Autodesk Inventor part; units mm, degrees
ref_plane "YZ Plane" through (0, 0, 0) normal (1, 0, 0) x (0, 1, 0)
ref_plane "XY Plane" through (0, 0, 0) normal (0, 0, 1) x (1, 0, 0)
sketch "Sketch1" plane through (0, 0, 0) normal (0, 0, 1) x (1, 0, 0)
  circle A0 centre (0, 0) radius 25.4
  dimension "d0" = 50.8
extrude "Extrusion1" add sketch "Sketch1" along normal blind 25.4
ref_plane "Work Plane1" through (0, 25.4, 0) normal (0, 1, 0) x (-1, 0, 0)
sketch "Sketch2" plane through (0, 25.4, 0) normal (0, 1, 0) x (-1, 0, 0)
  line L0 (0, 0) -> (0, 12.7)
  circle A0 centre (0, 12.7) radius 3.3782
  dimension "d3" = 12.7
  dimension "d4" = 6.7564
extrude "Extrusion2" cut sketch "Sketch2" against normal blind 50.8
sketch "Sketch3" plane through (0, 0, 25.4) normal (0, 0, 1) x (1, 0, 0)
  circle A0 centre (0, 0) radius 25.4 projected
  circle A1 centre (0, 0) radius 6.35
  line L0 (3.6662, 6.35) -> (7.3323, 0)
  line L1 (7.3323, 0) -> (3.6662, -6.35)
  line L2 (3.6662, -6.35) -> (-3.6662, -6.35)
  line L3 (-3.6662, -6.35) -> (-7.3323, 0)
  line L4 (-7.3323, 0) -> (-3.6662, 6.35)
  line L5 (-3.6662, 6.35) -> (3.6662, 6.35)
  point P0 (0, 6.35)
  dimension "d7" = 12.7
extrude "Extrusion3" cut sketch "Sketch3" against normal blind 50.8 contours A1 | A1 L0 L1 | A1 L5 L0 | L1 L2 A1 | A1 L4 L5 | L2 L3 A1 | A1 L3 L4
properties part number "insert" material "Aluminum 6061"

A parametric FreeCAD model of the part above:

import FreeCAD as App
import Part
import Sketcher

V = App.Vector
Q = App.Units.Quantity


def add_polygon(sketch, points):
    """Adds a closed chain of lines whose ends are joined by coincident constraints."""
    first, n = sketch.GeometryCount, len(points)
    for a, b in zip(points, points[1:] + points[:1]):
        sketch.addGeometry(Part.LineSegment(App.Vector(*a, 0), App.Vector(*b, 0)), False)
    for i in range(n):
        sketch.addConstraint(Sketcher.Constraint("Coincident", first + i, 2, first + (i + 1) % n, 1))

doc = App.newDocument("Part")
body = doc.addObject("PartDesign::Body", "Body")

# Sketch on XY plane
sketch1 = body.newObject("Sketcher::SketchObject", "Sketch")
sketch1.AttachmentSupport = (doc.getObject("XY_Plane"), [""])
sketch1.MapMode = "FlatFace"
sketch1.addGeometry(Part.Circle(V(0, 0, 0), V(0, 0, 1), 25), False)
sketch1.addConstraint(Sketcher.Constraint("Coincident", 0, 3, -1, 1))
sketch1.addConstraint(Sketcher.Constraint("Diameter", 0, Q("2 in")))
pad1 = body.newObject("PartDesign::Pad", "Pad")
pad1.Profile = sketch1
pad1.Length = Q("1 in")

# Sketch on XZ plane
sketch2 = body.newObject("Sketcher::SketchObject", "Sketch001")
sketch2.AttachmentSupport = (doc.getObject("XZ_Plane"), [""])
sketch2.MapMode = "FlatFace"
sketch2.AttachmentOffset = App.Placement(V(0, 0, -1 * 25.4), App.Rotation())
sketch2.addGeometry(Part.Circle(V(0, 12.7, 0), V(0, 0, 1), 3.4), False)
sketch2.addConstraint(Sketcher.Constraint("PointOnObject", 0, 3, -2))
sketch2.addConstraint(Sketcher.Constraint("Diameter", 0, Q("0.266 in")))
sketch2.addConstraint(Sketcher.Constraint("DistanceY", -1, 1, 0, 3, Q("0.5 in")))
pocket1 = body.newObject("PartDesign::Pocket", "Pocket")
pocket1.Profile = sketch2
pocket1.Length = Q("2 in")
pocket1.Reversed = True

# Sketch on XY plane
sketch3 = body.newObject("Sketcher::SketchObject", "Sketch002")
sketch3.AttachmentSupport = (doc.getObject("XY_Plane"), [""])
sketch3.MapMode = "FlatFace"
sketch3.AttachmentOffset = App.Placement(V(0, 0, 1 * 25.4), App.Rotation())
add_polygon(sketch3, [(7, 0), (4, 6), (-4, 6), (-7, 0), (-4, -6), (4, -6)])  # lines 0-5
sketch3.addConstraint(Sketcher.Constraint("Horizontal", 1))
sketch3.addConstraint(Sketcher.Constraint("Horizontal", 4))
sketch3.addConstraint(Sketcher.Constraint("Symmetric", 0, 2, 3, 2, -1, 1))
sketch3.addConstraint(Sketcher.Constraint("Symmetric", 2, 2, 5, 2, -1, 1))
sketch3.addConstraint(Sketcher.Constraint("PointOnObject", 2, 2, -1))
sketch3.addConstraint(Sketcher.Constraint("Parallel", 2, 5))
sketch3.addConstraint(Sketcher.Constraint("Vertical", 1, 2, 3, 2))
sketch3.addConstraint(Sketcher.Constraint("DistanceY", 3, 2, 1, 2, Q("0.5 in")))
sketch3.addConstraint(Sketcher.Constraint("Angle", 0, Q("119.9995 deg")))
sketch3.addConstraint(Sketcher.Constraint("DistanceX", 2, 2, 0, 2, Q("0.433 in")))
pocket2 = body.newObject("PartDesign::Pocket", "Pocket001")
pocket2.Profile = sketch3
pocket2.Length = Q("2 in")

doc.recompute()
